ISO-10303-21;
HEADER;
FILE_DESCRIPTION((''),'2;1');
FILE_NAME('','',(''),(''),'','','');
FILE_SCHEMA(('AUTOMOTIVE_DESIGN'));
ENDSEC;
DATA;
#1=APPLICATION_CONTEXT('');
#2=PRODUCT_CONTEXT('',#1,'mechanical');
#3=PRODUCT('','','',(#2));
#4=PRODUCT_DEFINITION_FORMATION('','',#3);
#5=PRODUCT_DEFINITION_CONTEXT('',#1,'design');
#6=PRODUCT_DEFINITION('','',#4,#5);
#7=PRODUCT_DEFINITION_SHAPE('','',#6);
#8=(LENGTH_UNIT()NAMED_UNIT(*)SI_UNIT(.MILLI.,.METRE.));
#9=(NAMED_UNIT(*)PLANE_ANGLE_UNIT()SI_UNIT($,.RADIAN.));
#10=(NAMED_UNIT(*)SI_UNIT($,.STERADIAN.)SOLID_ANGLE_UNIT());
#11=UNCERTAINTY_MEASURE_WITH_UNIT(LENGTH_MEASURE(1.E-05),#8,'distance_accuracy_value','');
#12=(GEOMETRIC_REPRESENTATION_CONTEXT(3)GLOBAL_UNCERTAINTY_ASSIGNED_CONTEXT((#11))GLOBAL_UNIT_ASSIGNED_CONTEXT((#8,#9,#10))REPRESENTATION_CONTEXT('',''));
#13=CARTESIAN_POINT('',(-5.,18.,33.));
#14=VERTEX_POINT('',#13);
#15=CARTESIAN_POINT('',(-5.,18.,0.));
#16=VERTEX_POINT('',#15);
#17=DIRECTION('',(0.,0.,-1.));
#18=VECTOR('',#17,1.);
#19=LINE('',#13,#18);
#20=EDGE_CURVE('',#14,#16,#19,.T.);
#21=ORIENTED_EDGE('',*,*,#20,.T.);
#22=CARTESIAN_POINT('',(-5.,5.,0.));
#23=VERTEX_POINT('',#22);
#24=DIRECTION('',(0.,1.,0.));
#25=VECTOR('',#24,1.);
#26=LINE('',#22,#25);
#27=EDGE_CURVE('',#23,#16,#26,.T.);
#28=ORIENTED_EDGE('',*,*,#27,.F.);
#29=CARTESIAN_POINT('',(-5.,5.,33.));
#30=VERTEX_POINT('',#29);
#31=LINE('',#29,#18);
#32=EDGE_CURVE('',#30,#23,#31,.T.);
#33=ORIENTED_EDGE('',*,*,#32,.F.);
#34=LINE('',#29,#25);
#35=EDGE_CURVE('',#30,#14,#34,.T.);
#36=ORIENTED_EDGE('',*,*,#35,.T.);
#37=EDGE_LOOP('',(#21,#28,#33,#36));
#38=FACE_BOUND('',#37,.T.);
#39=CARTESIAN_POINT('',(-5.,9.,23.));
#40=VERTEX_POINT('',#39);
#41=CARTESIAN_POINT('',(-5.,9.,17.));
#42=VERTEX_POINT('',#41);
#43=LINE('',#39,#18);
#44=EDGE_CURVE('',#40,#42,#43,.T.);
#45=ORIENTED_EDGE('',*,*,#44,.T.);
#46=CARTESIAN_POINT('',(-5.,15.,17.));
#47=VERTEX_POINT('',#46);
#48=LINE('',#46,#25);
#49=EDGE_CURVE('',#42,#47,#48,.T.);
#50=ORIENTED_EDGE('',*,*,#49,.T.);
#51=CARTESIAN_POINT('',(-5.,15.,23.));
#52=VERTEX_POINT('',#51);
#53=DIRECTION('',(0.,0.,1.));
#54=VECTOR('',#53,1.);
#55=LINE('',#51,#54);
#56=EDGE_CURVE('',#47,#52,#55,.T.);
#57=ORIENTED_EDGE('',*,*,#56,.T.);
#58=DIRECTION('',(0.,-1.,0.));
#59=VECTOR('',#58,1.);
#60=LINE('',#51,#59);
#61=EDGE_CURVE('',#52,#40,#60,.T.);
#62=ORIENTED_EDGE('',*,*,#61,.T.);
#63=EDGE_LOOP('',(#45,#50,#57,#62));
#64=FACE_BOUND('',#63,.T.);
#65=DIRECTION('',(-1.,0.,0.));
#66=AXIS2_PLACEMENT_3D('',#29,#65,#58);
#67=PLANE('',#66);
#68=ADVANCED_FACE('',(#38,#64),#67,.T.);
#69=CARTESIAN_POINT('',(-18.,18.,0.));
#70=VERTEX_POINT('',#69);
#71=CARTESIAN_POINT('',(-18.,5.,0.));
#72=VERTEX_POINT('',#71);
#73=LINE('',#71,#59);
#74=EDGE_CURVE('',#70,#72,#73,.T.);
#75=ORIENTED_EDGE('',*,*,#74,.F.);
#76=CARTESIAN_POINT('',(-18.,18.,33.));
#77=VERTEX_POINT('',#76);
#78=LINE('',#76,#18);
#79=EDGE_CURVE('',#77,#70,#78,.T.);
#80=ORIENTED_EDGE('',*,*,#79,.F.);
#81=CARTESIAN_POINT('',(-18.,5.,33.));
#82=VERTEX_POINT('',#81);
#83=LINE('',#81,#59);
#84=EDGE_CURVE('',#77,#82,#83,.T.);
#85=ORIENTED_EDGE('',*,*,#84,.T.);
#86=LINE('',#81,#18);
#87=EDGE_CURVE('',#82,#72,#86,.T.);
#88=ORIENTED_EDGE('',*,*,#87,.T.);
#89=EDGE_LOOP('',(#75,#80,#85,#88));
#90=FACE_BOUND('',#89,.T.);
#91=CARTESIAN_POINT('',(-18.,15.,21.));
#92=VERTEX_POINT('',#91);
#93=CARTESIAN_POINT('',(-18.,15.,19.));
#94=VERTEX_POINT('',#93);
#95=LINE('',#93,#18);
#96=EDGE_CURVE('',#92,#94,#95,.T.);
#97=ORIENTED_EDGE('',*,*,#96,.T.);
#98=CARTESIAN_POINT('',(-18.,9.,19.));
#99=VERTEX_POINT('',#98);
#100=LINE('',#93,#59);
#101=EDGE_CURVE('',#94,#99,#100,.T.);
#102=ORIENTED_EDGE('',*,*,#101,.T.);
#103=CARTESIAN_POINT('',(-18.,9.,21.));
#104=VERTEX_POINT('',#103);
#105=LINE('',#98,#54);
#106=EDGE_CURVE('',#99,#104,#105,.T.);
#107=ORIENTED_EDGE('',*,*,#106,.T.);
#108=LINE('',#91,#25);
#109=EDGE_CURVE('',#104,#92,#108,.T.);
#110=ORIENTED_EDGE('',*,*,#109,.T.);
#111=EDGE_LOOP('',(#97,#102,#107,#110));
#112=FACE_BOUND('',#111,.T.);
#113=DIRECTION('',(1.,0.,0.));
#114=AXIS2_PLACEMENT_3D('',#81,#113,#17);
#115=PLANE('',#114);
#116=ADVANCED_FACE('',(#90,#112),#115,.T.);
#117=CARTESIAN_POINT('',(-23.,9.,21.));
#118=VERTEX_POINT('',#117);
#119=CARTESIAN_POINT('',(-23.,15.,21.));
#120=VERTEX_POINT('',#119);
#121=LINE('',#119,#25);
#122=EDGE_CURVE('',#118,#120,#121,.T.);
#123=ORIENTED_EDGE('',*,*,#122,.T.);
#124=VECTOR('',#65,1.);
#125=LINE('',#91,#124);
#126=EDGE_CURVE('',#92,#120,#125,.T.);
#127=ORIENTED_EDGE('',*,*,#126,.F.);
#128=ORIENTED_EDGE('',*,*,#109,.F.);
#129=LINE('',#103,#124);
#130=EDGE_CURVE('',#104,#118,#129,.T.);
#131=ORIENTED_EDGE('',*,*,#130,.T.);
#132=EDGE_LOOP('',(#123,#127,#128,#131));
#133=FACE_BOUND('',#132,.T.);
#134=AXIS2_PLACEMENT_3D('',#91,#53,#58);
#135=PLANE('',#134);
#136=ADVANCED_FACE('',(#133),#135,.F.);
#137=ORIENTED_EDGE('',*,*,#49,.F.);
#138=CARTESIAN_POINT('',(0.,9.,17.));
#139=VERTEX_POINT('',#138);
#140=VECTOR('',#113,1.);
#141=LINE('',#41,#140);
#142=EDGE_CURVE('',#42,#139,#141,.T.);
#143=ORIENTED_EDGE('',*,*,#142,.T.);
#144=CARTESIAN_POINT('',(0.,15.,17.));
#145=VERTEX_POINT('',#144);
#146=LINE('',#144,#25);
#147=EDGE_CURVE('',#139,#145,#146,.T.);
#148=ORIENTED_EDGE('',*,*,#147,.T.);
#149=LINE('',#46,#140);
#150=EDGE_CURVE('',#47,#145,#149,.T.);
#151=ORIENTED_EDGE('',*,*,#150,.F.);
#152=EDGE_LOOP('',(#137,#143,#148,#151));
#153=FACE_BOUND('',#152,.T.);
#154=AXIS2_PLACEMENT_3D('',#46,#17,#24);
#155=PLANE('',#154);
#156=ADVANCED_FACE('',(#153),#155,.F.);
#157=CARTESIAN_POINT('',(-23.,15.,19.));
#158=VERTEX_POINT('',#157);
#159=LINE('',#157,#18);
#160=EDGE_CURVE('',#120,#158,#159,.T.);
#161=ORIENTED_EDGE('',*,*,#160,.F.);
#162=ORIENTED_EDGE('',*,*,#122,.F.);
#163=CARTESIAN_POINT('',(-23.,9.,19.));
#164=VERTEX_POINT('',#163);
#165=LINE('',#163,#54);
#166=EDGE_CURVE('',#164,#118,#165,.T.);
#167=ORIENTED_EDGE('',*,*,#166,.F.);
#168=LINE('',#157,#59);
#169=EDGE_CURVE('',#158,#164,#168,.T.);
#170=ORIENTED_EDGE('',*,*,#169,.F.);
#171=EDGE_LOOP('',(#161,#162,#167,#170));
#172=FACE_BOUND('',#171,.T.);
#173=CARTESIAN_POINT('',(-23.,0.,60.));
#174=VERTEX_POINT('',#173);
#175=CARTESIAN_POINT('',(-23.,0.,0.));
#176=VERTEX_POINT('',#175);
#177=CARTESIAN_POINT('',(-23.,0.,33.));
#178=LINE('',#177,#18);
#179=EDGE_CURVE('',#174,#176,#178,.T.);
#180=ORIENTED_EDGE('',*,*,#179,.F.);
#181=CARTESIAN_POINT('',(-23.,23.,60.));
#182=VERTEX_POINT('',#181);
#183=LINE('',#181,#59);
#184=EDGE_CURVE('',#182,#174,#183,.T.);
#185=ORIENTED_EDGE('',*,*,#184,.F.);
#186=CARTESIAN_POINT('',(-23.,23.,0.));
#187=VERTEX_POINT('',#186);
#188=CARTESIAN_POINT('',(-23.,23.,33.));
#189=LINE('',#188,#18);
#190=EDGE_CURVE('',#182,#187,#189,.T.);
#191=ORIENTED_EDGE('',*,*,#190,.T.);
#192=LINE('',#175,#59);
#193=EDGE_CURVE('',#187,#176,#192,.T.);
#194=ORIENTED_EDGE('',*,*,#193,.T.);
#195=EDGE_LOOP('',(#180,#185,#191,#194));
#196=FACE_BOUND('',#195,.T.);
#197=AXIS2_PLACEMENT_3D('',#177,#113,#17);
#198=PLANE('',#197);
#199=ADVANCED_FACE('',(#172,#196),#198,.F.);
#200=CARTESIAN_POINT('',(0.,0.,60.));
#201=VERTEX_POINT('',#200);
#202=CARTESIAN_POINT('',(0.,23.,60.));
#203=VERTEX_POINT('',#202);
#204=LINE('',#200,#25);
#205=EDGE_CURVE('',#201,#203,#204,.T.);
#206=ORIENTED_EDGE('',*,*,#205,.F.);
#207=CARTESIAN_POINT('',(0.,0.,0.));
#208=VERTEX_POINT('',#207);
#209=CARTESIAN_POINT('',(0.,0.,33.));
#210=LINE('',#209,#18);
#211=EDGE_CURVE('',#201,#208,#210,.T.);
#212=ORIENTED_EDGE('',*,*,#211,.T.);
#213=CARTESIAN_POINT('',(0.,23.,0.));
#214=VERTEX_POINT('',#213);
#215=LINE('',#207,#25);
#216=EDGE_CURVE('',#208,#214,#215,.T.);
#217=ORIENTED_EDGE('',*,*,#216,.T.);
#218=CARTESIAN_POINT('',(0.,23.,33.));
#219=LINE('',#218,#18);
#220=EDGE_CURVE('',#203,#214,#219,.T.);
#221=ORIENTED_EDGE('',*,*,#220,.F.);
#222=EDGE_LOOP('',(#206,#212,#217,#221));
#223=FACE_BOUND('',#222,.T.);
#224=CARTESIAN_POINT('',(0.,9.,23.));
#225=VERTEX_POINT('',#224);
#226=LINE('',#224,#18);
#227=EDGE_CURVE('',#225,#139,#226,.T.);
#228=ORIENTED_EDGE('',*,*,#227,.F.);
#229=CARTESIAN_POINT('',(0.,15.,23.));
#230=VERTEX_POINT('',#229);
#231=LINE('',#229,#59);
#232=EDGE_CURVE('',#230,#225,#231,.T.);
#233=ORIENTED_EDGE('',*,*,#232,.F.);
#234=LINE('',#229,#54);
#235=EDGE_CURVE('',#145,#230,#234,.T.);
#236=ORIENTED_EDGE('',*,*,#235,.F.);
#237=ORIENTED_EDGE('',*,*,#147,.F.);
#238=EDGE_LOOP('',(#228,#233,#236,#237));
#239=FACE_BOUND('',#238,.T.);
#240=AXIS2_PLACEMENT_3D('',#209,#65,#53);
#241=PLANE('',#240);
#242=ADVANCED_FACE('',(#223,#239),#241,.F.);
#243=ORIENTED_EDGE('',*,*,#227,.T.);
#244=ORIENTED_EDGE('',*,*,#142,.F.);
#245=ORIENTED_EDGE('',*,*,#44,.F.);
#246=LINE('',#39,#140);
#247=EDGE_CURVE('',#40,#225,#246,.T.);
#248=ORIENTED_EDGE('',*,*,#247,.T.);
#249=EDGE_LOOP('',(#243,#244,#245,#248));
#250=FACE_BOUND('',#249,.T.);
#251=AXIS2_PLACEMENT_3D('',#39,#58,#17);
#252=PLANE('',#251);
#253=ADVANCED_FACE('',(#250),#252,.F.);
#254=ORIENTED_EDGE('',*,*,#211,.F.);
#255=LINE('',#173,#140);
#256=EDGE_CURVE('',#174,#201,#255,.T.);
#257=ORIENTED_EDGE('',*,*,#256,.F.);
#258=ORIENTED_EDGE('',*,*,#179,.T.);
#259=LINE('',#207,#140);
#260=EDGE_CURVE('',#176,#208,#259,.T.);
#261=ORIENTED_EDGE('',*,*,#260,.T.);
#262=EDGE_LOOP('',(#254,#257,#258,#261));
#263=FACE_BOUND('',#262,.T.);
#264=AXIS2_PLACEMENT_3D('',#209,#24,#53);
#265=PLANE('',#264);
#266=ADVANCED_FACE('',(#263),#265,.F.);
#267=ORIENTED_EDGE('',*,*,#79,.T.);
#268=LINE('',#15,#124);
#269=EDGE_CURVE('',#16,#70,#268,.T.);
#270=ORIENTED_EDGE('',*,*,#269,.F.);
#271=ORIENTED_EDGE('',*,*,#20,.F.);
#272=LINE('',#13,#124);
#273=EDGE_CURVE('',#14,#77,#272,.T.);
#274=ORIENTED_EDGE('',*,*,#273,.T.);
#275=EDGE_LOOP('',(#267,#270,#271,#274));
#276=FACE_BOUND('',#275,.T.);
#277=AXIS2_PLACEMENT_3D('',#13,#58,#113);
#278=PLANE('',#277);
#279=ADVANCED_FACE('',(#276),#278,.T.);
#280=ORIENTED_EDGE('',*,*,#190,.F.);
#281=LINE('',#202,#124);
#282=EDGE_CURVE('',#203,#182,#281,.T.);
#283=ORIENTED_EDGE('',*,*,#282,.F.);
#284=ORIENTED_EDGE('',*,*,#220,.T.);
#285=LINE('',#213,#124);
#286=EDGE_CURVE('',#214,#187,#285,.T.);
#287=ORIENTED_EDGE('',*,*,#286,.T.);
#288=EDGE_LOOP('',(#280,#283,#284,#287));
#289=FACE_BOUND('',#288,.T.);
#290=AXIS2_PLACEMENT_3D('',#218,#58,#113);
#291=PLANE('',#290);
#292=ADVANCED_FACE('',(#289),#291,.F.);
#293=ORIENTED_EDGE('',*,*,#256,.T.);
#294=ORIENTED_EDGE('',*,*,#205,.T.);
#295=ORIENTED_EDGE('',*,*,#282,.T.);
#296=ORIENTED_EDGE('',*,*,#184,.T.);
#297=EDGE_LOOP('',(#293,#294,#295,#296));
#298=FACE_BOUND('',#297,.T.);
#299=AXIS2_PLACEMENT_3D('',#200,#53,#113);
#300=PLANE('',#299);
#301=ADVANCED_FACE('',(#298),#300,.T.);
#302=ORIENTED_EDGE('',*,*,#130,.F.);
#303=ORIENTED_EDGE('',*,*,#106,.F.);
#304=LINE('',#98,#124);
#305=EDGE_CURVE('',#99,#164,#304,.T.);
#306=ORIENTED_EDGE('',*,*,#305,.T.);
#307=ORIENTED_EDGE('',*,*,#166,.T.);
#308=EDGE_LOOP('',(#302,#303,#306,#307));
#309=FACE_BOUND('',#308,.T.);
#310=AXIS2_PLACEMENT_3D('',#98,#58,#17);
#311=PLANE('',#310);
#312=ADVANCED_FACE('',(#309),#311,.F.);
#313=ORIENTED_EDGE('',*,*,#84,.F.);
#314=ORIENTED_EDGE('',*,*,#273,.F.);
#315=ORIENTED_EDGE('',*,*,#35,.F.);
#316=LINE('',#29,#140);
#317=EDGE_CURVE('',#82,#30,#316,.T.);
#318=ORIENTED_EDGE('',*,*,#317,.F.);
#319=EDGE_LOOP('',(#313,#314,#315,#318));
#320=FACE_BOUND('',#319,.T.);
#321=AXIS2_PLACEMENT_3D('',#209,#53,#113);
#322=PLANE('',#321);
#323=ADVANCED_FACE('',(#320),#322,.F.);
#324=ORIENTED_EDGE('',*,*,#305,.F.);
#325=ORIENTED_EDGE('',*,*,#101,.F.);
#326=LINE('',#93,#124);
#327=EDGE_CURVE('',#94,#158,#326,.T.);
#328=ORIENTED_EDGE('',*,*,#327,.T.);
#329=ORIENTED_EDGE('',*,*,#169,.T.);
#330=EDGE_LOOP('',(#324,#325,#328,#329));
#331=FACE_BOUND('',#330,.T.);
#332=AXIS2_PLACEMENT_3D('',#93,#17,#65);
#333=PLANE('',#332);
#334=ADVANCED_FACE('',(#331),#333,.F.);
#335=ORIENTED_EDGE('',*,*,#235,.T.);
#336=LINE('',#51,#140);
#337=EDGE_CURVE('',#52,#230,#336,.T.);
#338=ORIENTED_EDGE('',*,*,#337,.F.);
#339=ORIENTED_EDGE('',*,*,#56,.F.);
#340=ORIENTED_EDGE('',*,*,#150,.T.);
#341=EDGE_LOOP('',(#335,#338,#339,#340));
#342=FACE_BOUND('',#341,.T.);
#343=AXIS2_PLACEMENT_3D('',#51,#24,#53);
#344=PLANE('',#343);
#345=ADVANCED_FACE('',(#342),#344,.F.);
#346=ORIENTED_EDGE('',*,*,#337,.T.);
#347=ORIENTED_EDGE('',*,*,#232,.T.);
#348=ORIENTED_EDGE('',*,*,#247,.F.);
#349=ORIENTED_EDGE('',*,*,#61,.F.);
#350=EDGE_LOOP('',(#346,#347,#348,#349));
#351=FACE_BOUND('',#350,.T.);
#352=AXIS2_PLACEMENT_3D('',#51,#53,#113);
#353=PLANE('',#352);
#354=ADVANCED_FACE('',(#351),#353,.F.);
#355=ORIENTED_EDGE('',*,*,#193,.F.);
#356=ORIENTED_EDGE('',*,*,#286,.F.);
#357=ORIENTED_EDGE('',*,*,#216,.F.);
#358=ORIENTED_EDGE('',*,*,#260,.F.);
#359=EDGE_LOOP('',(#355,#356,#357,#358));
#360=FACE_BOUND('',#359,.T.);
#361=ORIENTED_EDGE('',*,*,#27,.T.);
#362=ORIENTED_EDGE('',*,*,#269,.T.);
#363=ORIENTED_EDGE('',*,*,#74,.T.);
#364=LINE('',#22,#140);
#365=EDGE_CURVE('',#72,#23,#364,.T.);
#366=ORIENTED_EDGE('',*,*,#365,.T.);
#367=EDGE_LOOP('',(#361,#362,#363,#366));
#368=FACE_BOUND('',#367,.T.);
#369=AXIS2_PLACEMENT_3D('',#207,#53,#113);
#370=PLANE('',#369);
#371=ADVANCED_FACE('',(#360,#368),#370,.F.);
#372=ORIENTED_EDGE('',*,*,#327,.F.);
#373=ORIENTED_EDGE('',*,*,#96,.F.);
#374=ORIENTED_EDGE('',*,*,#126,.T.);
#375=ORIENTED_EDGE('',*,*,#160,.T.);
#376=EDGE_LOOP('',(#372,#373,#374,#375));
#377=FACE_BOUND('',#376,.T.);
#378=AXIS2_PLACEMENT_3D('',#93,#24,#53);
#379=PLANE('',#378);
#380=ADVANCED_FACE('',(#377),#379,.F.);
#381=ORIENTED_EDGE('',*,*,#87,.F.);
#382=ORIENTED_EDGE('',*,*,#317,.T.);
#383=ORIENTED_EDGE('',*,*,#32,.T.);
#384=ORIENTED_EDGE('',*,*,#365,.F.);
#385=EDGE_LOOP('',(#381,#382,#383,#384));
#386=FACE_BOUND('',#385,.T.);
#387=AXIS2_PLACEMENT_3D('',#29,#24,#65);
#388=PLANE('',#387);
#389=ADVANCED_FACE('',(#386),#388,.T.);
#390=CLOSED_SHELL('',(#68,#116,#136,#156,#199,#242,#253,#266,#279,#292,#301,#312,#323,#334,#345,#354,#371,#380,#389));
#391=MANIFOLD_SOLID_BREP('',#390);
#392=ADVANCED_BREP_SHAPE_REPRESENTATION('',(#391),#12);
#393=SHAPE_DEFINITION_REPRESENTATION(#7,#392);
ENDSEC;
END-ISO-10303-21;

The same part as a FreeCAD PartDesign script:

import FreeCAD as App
import Part
import Sketcher

V = App.Vector

doc = App.newDocument("Part")
params = doc.addObject("Spreadsheet::Sheet", "Params")
for row, (alias, value) in enumerate([
    ("sketch1_width", "23 mm"),
    ("sketch1_width2", "13 mm"),
    ("pad1_length", "33 mm"),
    ("sketch2_width", "23 mm"),
    ("pad2_length", "27 mm"),
    ("sketch3_width", "6 mm"),
    ("pad3_length", "5 mm"),
    ("sketch4_width", "6 mm"),
    ("pocket1_length", "5 mm"),
    ("sketch5_width", "6 mm"),
    ("sketch5_height", "2 mm"),
    ("pocket2_length", "5 mm"),
], start=1):
    params.set(f"A{row}", alias)
    params.set(f"B{row}", "=" + value)
    params.setAlias(f"B{row}", alias)

body = doc.addObject("PartDesign::Body", "Body")

# Sketch on XY plane
sketch1 = body.newObject("Sketcher::SketchObject", "Sketch")
sketch1.AttachmentSupport = (doc.getObject("XY_Plane"), [""])
sketch1.MapMode = "FlatFace"
sketch1.addGeometry([
    Part.LineSegment(V(-23, 23, 0), V(-23, 0, 0)),  # 0
    Part.LineSegment(V(-23, 0, 0), V(0, 0, 0)),  # 1
    Part.LineSegment(V(0, 0, 0), V(0, 23, 0)),  # 2
    Part.LineSegment(V(0, 23, 0), V(-23, 23, 0)),  # 3
    Part.LineSegment(V(-5, 5, 0), V(-18, 5, 0)),  # 4
    Part.LineSegment(V(-18, 5, 0), V(-18, 18, 0)),  # 5
    Part.LineSegment(V(-18, 18, 0), V(-5, 18, 0)),  # 6
    Part.LineSegment(V(-5, 18, 0), V(-5, 5, 0)),  # 7
], False)
sketch1.addConstraint([
    Sketcher.Constraint("Coincident", 0, 2, 1, 1),
    Sketcher.Constraint("Coincident", 1, 2, 2, 1),
    Sketcher.Constraint("Coincident", 2, 2, 3, 1),
    Sketcher.Constraint("Coincident", 3, 2, 0, 1),
    Sketcher.Constraint("Coincident", 4, 2, 5, 1),
    Sketcher.Constraint("Coincident", 5, 2, 6, 1),
    Sketcher.Constraint("Coincident", 6, 2, 7, 1),
    Sketcher.Constraint("Coincident", 7, 2, 4, 1),
    Sketcher.Constraint("Vertical", 0),
    Sketcher.Constraint("Horizontal", 1),
    Sketcher.Constraint("Vertical", 2),
    Sketcher.Constraint("Horizontal", 3),
    Sketcher.Constraint("Horizontal", 4),
    Sketcher.Constraint("Vertical", 5),
    Sketcher.Constraint("Horizontal", 6),
    Sketcher.Constraint("Vertical", 7),
    Sketcher.Constraint("Coincident", 1, 2, -1, 1),
    Sketcher.Constraint("Equal", 3, 0),
    Sketcher.Constraint("Equal", 6, 5),
    Sketcher.Constraint("DistanceX", 1, 1, 1, 2, 23.0),
    Sketcher.Constraint("DistanceX", 4, 2, 4, 1, 13.0),
    Sketcher.Constraint("DistanceX", 4, 2, -1, 1, 18.0),
    Sketcher.Constraint("DistanceY", -1, 1, 4, 2, 5.0),
])
sketch1.setExpression("Constraints[19]", "Params.sketch1_width")
sketch1.setExpression("Constraints[20]", "Params.sketch1_width2")
pad1 = body.newObject("PartDesign::Pad", "Pad")
pad1.Profile = sketch1
pad1.setExpression("Length", "Params.pad1_length")

# Sketch on XY plane
sketch2 = body.newObject("Sketcher::SketchObject", "Sketch001")
sketch2.AttachmentSupport = (doc.getObject("XY_Plane"), [""])
sketch2.MapMode = "FlatFace"
sketch2.AttachmentOffset = App.Placement(V(0, 0, 33), App.Rotation())
sketch2.addGeometry([
    Part.LineSegment(V(-23, 23, 0), V(-23, 0, 0)),
    Part.LineSegment(V(-23, 0, 0), V(0, 0, 0)),
    Part.LineSegment(V(0, 0, 0), V(0, 23, 0)),
    Part.LineSegment(V(0, 23, 0), V(-23, 23, 0)),
], False)
sketch2.addConstraint([
    Sketcher.Constraint("Coincident", 0, 2, 1, 1),
    Sketcher.Constraint("Coincident", 1, 2, 2, 1),
    Sketcher.Constraint("Coincident", 2, 2, 3, 1),
    Sketcher.Constraint("Coincident", 3, 2, 0, 1),
    Sketcher.Constraint("Vertical", 0),
    Sketcher.Constraint("Horizontal", 1),
    Sketcher.Constraint("Vertical", 2),
    Sketcher.Constraint("Horizontal", 3),
    Sketcher.Constraint("Coincident", 1, 2, -1, 1),
    Sketcher.Constraint("Equal", 3, 0),
    Sketcher.Constraint("DistanceX", 1, 1, 1, 2, 23.0),
])
sketch2.setExpression("Constraints[10]", "Params.sketch2_width")
pad2 = body.newObject("PartDesign::Pad", "Pad001")
pad2.Profile = sketch2
pad2.setExpression("Length", "Params.pad2_length")

# Sketch on YZ plane
sketch3 = body.newObject("Sketcher::SketchObject", "Sketch002")
sketch3.AttachmentSupport = (doc.getObject("YZ_Plane"), [""])
sketch3.MapMode = "FlatFace"
sketch3.addGeometry([
    Part.LineSegment(V(15, 23, 0), V(9, 23, 0)),
    Part.LineSegment(V(9, 23, 0), V(9, 17, 0)),
    Part.LineSegment(V(9, 17, 0), V(15, 17, 0)),
    Part.LineSegment(V(15, 17, 0), V(15, 23, 0)),
], False)
sketch3.addConstraint([
    Sketcher.Constraint("Coincident", 0, 2, 1, 1),
    Sketcher.Constraint("Coincident", 1, 2, 2, 1),
    Sketcher.Constraint("Coincident", 2, 2, 3, 1),
    Sketcher.Constraint("Coincident", 3, 2, 0, 1),
    Sketcher.Constraint("Horizontal", 0),
    Sketcher.Constraint("Vertical", 1),
    Sketcher.Constraint("Horizontal", 2),
    Sketcher.Constraint("Vertical", 3),
    Sketcher.Constraint("Equal", 2, 1),
    Sketcher.Constraint("DistanceX", 0, 2, 0, 1, 6.0),
    Sketcher.Constraint("DistanceX", -1, 1, 0, 2, 9.0),
    Sketcher.Constraint("DistanceY", -1, 1, 0, 2, 23.0),
])
sketch3.setExpression("Constraints[9]", "Params.sketch3_width")
pad3 = body.newObject("PartDesign::Pad", "Pad002")
pad3.Profile = sketch3
pad3.setExpression("Length", "Params.pad3_length")
pad3.Reversed = True

# Sketch on YZ plane
sketch4 = body.newObject("Sketcher::SketchObject", "Sketch003")
sketch4.AttachmentSupport = (doc.getObject("YZ_Plane"), [""])
sketch4.MapMode = "FlatFace"
sketch4.addGeometry([
    Part.LineSegment(V(15, 23, 0), V(9, 23, 0)),
    Part.LineSegment(V(9, 23, 0), V(9, 17, 0)),
    Part.LineSegment(V(9, 17, 0), V(15, 17, 0)),
    Part.LineSegment(V(15, 17, 0), V(15, 23, 0)),
], False)
sketch4.addConstraint([
    Sketcher.Constraint("Coincident", 0, 2, 1, 1),
    Sketcher.Constraint("Coincident", 1, 2, 2, 1),
    Sketcher.Constraint("Coincident", 2, 2, 3, 1),
    Sketcher.Constraint("Coincident", 3, 2, 0, 1),
    Sketcher.Constraint("Horizontal", 0),
    Sketcher.Constraint("Vertical", 1),
    Sketcher.Constraint("Horizontal", 2),
    Sketcher.Constraint("Vertical", 3),
    Sketcher.Constraint("Equal", 2, 1),
    Sketcher.Constraint("DistanceX", 0, 2, 0, 1, 6.0),
    Sketcher.Constraint("DistanceX", -1, 1, 0, 2, 9.0),
    Sketcher.Constraint("DistanceY", -1, 1, 0, 2, 23.0),
])
sketch4.setExpression("Constraints[9]", "Params.sketch4_width")
pocket1 = body.newObject("PartDesign::Pocket", "Pocket")
pocket1.Profile = sketch4
pocket1.setExpression("Length", "Params.pocket1_length")

# Sketch on YZ plane
sketch5 = body.newObject("Sketcher::SketchObject", "Sketch004")
sketch5.AttachmentSupport = (doc.getObject("YZ_Plane"), [""])
sketch5.MapMode = "FlatFace"
sketch5.AttachmentOffset = App.Placement(V(0, 0, -23), App.Rotation())
sketch5.addGeometry([
    Part.LineSegment(V(15, 19, 0), V(9, 19, 0)),
    Part.LineSegment(V(9, 19, 0), V(9, 21, 0)),
    Part.LineSegment(V(9, 21, 0), V(15, 21, 0)),
    Part.LineSegment(V(15, 21, 0), V(15, 19, 0)),
], False)
sketch5.addConstraint([
    Sketcher.Constraint("Coincident", 0, 2, 1, 1),
    Sketcher.Constraint("Coincident", 1, 2, 2, 1),
    Sketcher.Constraint("Coincident", 2, 2, 3, 1),
    Sketcher.Constraint("Coincident", 3, 2, 0, 1),
    Sketcher.Constraint("Horizontal", 0),
    Sketcher.Constraint("Vertical", 1),
    Sketcher.Constraint("Horizontal", 2),
    Sketcher.Constraint("Vertical", 3),
    Sketcher.Constraint("DistanceX", 0, 2, 0, 1, 6.0),
    Sketcher.Constraint("DistanceY", 1, 1, 1, 2, 2.0),
    Sketcher.Constraint("DistanceX", -1, 1, 0, 2, 9.0),
    Sketcher.Constraint("DistanceY", -1, 1, 0, 2, 19.0),
])
sketch5.setExpression("Constraints[8]", "Params.sketch5_width")
sketch5.setExpression("Constraints[9]", "Params.sketch5_height")
pocket2 = body.newObject("PartDesign::Pocket", "Pocket001")
pocket2.Profile = sketch5
pocket2.setExpression("Length", "Params.pocket2_length")
pocket2.Reversed = True

doc.recompute()
